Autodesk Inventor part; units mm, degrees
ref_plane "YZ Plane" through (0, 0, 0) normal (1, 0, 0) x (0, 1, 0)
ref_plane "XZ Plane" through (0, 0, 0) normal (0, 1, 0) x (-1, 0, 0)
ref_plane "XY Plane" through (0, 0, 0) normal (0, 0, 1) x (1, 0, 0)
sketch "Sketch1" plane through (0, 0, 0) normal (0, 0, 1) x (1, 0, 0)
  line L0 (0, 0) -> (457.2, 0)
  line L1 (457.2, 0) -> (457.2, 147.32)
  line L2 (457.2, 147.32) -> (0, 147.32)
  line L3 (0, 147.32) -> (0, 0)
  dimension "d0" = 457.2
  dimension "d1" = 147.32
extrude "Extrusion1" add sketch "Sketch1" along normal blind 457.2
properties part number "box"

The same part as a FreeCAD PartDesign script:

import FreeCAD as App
import Part
import Sketcher
Q = App.Units.Quantity


def add_polygon(sketch, points):
    """Adds a closed chain of lines whose ends are joined by coincident constraints."""
    first, n = sketch.GeometryCount, len(points)
    for a, b in zip(points, points[1:] + points[:1]):
        sketch.addGeometry(Part.LineSegment(App.Vector(*a, 0), App.Vector(*b, 0)), False)
    for i in range(n):
        sketch.addConstraint(Sketcher.Constraint("Coincident", first + i, 2, first + (i + 1) % n, 1))

doc = App.newDocument("Part")
body = doc.addObject("PartDesign::Body", "Body")

# Sketch on XY plane
sketch1 = body.newObject("Sketcher::SketchObject", "Sketch")
sketch1.AttachmentSupport = (doc.getObject("XY_Plane"), [""])
sketch1.MapMode = "FlatFace"
add_polygon(sketch1, [(0, 147.32), (0, 0), (457.2, 0), (457.2, 147.32)])  # lines 0-3
sketch1.addConstraint(Sketcher.Constraint("Vertical", 0))
sketch1.addConstraint(Sketcher.Constraint("Horizontal", 1))
sketch1.addConstraint(Sketcher.Constraint("Vertical", 2))
sketch1.addConstraint(Sketcher.Constraint("Horizontal", 3))
sketch1.addConstraint(Sketcher.Constraint("Coincident", 0, 2, -1, 1))
sketch1.addConstraint(Sketcher.Constraint("DistanceX", 1, 1, 1, 2, Q("18 in")))
sketch1.addConstraint(Sketcher.Constraint("DistanceY", 0, 2, 0, 1, Q("5.8 in")))
pad1 = body.newObject("PartDesign::Pad", "Pad")
pad1.Profile = sketch1
pad1.Length = Q("18 in")

doc.recompute()
